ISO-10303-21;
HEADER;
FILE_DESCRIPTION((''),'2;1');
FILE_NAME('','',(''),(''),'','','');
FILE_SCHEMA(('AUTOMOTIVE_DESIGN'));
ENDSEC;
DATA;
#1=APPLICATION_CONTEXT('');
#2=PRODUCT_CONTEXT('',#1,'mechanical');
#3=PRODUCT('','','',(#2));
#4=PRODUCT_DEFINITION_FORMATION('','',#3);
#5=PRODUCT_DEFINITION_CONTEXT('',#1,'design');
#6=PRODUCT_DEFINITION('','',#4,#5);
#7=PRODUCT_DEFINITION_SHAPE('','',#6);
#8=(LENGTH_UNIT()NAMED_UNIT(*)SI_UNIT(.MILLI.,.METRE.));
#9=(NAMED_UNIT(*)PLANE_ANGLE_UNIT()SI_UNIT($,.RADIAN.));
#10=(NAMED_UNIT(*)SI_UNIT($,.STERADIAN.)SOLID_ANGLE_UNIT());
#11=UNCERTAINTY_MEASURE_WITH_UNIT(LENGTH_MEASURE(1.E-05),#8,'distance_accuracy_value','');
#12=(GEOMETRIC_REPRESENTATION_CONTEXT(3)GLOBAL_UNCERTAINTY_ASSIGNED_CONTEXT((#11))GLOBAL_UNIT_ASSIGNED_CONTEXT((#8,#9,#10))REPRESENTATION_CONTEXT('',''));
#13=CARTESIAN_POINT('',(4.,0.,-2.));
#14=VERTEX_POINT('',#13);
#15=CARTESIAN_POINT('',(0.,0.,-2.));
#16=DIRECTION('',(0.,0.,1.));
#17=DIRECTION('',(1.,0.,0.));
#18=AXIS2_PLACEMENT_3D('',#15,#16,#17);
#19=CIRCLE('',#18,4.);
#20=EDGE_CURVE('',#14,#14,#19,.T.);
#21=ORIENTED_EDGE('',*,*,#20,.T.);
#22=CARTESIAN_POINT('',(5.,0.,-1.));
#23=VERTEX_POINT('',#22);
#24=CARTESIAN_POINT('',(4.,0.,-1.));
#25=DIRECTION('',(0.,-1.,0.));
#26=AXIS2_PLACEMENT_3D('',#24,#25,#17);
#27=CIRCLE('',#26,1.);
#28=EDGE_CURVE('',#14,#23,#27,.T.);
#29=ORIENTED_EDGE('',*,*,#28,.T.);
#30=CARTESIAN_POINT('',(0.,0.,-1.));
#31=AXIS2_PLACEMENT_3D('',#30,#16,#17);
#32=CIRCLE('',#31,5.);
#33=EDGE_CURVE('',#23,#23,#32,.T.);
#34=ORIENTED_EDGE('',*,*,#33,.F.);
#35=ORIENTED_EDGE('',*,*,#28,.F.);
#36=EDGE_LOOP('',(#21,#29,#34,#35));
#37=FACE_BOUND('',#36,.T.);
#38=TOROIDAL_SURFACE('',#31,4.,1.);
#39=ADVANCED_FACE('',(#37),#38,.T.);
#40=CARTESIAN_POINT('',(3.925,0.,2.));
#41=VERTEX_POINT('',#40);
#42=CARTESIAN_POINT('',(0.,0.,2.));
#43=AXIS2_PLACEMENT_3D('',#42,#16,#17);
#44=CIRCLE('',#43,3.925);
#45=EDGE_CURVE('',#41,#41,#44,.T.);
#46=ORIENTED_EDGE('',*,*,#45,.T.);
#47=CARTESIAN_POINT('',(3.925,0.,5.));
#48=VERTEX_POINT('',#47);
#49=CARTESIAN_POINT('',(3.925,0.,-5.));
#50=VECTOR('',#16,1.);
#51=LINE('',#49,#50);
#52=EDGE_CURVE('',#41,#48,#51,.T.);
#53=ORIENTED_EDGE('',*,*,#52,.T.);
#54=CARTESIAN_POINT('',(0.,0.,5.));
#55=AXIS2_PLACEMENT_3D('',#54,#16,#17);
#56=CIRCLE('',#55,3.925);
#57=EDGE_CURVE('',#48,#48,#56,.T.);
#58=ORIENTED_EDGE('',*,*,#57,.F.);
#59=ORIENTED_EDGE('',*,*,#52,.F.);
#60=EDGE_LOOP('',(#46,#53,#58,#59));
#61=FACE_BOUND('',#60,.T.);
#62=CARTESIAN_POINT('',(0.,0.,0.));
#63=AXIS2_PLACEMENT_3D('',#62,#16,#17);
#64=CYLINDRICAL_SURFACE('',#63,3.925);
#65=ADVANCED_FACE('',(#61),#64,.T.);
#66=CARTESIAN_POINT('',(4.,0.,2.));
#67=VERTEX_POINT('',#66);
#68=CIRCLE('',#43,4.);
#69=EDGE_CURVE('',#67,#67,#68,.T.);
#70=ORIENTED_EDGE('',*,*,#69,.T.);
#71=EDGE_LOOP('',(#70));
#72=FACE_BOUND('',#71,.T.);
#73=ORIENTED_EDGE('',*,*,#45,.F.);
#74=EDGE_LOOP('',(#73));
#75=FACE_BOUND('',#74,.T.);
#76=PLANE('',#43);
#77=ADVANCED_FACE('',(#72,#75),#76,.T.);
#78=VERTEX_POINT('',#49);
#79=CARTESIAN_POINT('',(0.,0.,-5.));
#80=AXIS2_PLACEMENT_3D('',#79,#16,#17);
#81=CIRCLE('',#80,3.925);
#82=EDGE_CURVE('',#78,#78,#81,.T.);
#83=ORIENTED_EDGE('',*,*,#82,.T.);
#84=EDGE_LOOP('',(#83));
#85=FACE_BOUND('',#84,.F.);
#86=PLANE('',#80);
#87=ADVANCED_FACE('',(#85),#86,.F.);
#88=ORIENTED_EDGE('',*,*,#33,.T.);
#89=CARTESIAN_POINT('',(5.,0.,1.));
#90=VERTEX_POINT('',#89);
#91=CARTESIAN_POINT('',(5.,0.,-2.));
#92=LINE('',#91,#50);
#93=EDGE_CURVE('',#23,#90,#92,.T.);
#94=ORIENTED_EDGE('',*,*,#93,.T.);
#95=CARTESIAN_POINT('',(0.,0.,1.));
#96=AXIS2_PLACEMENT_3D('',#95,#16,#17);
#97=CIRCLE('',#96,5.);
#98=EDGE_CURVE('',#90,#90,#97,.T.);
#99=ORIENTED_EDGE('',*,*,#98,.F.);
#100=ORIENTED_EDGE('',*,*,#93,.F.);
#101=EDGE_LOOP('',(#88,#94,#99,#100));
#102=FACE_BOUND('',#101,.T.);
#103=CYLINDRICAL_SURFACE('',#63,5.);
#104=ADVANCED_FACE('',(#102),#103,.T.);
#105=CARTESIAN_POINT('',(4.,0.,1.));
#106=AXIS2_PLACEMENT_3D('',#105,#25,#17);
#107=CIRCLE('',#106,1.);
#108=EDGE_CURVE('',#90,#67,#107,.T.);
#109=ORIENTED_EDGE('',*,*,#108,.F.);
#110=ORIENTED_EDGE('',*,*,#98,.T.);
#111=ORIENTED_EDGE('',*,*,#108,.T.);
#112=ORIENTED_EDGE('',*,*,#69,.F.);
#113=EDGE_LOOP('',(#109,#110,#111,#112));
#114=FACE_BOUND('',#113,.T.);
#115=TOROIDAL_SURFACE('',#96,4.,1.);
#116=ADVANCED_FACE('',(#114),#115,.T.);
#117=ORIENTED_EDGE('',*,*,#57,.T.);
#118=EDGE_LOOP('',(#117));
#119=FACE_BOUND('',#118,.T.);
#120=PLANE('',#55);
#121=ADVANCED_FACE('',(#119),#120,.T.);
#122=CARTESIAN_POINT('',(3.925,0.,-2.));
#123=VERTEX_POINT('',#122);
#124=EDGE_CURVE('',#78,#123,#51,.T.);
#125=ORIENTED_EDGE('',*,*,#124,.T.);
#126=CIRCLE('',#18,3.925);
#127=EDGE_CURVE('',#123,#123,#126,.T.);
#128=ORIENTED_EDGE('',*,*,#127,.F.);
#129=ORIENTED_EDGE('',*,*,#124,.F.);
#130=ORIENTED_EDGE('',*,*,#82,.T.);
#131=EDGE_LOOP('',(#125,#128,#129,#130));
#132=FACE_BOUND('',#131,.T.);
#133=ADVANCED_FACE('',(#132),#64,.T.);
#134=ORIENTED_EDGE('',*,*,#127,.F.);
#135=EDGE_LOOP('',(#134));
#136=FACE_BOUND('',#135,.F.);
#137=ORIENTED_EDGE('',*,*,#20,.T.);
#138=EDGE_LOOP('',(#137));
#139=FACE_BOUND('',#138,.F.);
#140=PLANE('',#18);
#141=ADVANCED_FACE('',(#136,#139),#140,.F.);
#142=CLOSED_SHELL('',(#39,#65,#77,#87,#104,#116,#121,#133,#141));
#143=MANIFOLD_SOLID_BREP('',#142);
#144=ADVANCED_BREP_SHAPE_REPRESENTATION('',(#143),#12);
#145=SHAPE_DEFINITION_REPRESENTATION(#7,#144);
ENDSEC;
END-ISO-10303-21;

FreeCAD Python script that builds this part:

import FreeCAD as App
import Part
import Sketcher

V = App.Vector
Q = App.Units.Quantity


def edges_at(feature, points):
    """Names of the edges that pass closest to the given points."""
    edges = feature.Shape.Edges
    near = lambda p: min(range(len(edges)), key=lambda i: edges[i].distToShape(Part.Vertex(*p))[0])
    return sorted({f"Edge{near(p) + 1}" for p in points})

doc = App.newDocument("Part")
body = doc.addObject("PartDesign::Body", "Body")

# Sketch on XY plane
sketch1 = body.newObject("Sketcher::SketchObject", "Sketch")
sketch1.AttachmentSupport = (doc.getObject("XY_Plane"), [""])
sketch1.MapMode = "FlatFace"
sketch1.addGeometry(Part.Circle(V(0, 0, 0), V(0, 0, 1), 3.9), False)
sketch1.addConstraint(Sketcher.Constraint("Coincident", 0, 3, -1, 1))
sketch1.addConstraint(Sketcher.Constraint("Diameter", 0, Q("7.85 mm")))
pad1 = body.newObject("PartDesign::Pad", "Pad")
pad1.Profile = sketch1
pad1.Length = 10
pad1.Midplane = True

# Sketch on XY plane
sketch2 = body.newObject("Sketcher::SketchObject", "Sketch001")
sketch2.AttachmentSupport = (doc.getObject("XY_Plane"), [""])
sketch2.MapMode = "FlatFace"
sketch2.addGeometry(Part.Circle(V(0, 0, 0), V(0, 0, 1), 5), False)
sketch2.addGeometry(Part.Circle(V(0, 0, 0), V(0, 0, 1), 3.9), False)
sketch2.addConstraint(Sketcher.Constraint("Coincident", 0, 3, -1, 1))
sketch2.addConstraint(Sketcher.Constraint("Coincident", 1, 3, -1, 1))
sketch2.addConstraint(Sketcher.Constraint("Diameter", 0, Q("10 mm")))
sketch2.addConstraint(Sketcher.Constraint("Diameter", 1, Q("7.85 mm")))
pad2 = body.newObject("PartDesign::Pad", "Pad001")
pad2.Profile = sketch2
pad2.Length = 4
pad2.Midplane = True
doc.recompute()

fillet = body.newObject("PartDesign::Fillet", "Fillet")
fillet.Base = (pad2, edges_at(pad2, [(-5, 0, 2), (-5, 0, -2)]))
fillet.Radius = 1

doc.recompute()
